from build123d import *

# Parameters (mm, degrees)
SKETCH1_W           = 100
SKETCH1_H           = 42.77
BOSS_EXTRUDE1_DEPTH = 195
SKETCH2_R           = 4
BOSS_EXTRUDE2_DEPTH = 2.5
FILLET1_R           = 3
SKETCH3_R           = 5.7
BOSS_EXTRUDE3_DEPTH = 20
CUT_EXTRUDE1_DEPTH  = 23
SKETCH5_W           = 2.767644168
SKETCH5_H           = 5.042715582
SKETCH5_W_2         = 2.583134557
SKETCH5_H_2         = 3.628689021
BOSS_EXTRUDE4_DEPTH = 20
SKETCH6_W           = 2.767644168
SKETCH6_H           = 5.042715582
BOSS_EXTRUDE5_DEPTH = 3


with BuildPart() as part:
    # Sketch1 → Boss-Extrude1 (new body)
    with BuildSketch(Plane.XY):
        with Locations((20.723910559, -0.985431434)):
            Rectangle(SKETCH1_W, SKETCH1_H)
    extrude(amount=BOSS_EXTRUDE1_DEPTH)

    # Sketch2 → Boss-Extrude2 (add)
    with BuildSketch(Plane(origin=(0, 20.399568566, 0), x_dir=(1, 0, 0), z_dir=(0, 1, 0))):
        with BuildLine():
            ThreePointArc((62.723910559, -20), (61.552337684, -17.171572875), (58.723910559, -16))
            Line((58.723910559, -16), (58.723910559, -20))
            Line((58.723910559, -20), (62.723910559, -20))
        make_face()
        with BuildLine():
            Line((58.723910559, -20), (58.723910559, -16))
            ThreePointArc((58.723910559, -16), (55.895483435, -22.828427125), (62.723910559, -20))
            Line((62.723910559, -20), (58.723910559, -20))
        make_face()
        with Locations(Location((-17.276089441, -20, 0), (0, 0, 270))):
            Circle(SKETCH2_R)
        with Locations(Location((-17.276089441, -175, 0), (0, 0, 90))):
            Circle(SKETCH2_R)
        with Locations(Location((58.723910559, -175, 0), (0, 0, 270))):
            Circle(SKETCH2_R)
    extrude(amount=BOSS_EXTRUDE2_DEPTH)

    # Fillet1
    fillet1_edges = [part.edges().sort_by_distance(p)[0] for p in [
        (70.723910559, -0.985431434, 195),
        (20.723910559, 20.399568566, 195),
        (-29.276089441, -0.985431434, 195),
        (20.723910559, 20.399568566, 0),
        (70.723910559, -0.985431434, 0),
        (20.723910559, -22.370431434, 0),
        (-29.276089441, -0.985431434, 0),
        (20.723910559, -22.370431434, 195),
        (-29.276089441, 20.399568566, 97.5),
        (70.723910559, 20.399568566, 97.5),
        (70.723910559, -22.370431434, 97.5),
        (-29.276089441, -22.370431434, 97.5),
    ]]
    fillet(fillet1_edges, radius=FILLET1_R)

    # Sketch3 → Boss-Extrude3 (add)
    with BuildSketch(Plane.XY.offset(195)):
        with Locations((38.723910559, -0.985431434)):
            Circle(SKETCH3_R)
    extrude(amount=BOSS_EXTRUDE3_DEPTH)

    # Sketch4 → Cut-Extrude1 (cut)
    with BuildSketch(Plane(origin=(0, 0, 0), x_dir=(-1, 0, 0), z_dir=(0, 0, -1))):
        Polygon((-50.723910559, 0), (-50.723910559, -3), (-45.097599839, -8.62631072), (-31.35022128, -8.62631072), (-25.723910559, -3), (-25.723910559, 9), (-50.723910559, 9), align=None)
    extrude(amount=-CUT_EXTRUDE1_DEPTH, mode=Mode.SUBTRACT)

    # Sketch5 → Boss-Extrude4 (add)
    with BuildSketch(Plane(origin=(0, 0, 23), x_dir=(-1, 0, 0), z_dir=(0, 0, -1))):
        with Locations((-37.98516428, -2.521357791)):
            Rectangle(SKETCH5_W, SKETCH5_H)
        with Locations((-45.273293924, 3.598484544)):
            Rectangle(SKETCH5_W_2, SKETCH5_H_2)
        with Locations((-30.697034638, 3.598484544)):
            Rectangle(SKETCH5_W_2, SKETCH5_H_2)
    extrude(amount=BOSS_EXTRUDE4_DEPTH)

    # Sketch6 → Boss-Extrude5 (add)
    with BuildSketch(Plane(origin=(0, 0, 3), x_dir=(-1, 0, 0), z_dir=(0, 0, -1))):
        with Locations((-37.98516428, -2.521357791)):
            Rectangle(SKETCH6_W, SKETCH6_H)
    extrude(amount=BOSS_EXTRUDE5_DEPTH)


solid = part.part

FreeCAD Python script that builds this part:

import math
import FreeCAD as App
import Part
import Sketcher

V = App.Vector


def edges_at(feature, points):
    """Names of the edges that pass closest to the given points."""
    edges = feature.Shape.Edges
    near = lambda p: min(range(len(edges)), key=lambda i: edges[i].distToShape(Part.Vertex(*p))[0])
    return sorted({f"Edge{near(p) + 1}" for p in points})

doc = App.newDocument("Part")
body = doc.addObject("PartDesign::Body", "Body")

# Sketch on XY plane
sketch1 = doc.addObject("Sketcher::SketchObject", "Sketch")
body.addObject(sketch1)
sketch1.AttachmentSupport = (doc.XY_Plane, [""])
sketch1.MapMode = "FlatFace"
sketch1.addGeometry(Part.LineSegment(V(-29.276089, 20.399569, 0), V(-29.276089, -22.370431, 0)), False)
sketch1.addGeometry(Part.LineSegment(V(-29.276089, -22.370431, 0), V(70.723911, -22.370431, 0)), False)
sketch1.addGeometry(Part.LineSegment(V(70.723911, -22.370431, 0), V(70.723911, 20.399569, 0)), False)
sketch1.addGeometry(Part.LineSegment(V(70.723911, 20.399569, 0), V(-29.276089, 20.399569, 0)), False)
sketch1.addConstraint(Sketcher.Constraint("Coincident", 0, 2, 1, 1))
sketch1.addConstraint(Sketcher.Constraint("Coincident", 1, 2, 2, 1))
sketch1.addConstraint(Sketcher.Constraint("Coincident", 2, 2, 3, 1))
sketch1.addConstraint(Sketcher.Constraint("Coincident", 3, 2, 0, 1))
sketch1.addConstraint(Sketcher.Constraint("Vertical", 0))
sketch1.addConstraint(Sketcher.Constraint("Horizontal", 1))
sketch1.addConstraint(Sketcher.Constraint("Vertical", 2))
sketch1.addConstraint(Sketcher.Constraint("Horizontal", 3))
sketch1.addConstraint(Sketcher.Constraint("DistanceX", 1, 1, 1, 2, 100.0))
sketch1.addConstraint(Sketcher.Constraint("DistanceY", 0, 2, 0, 1, 42.77))
sketch1.addConstraint(Sketcher.Constraint("DistanceX", 0, 2, -1, 1, 29.276089))
sketch1.addConstraint(Sketcher.Constraint("DistanceY", 0, 2, -1, 1, 22.370431))
pad1 = doc.addObject("PartDesign::Pad", "Pad")
body.addObject(pad1)
pad1.Profile = sketch1
pad1.Length = 195

# Sketch on XZ plane
sketch2 = doc.addObject("Sketcher::SketchObject", "Sketch001")
body.addObject(sketch2)
sketch2.AttachmentSupport = (doc.XZ_Plane, [""])
sketch2.MapMode = "FlatFace"
sketch2.AttachmentOffset = App.Placement(V(0, 0, -20.399569), App.Rotation())
sketch2.addGeometry(Part.ArcOfCircle(Part.Circle(V(58.723911, 20, 0), V(0, 0, 1), 4), math.radians(-90), math.radians(0)), False)
sketch2.addGeometry(Part.ArcOfCircle(Part.Circle(V(58.723911, 20, 0), V(0, 0, 1), 4), math.radians(0), math.radians(270)), False)
sketch2.addGeometry(Part.Circle(V(-17.276089, 20, 0), V(0, 0, 1), 4), False)
sketch2.addGeometry(Part.Circle(V(-17.276089, 175, 0), V(0, 0, 1), 4), False)
sketch2.addGeometry(Part.Circle(V(58.723911, 175, 0), V(0, 0, 1), 4), False)
sketch2.addConstraint(Sketcher.Constraint("Tangent", 0, 1, 1, 2))
sketch2.addConstraint(Sketcher.Constraint("Coincident", 1, 1, 0, 2))
sketch2.addConstraint(Sketcher.Constraint("Equal", 1, 2))
sketch2.addConstraint(Sketcher.Constraint("Equal", 2, 3))
sketch2.addConstraint(Sketcher.Constraint("Equal", 3, 4))
sketch2.addConstraint(Sketcher.Constraint("Horizontal", 1, 3, 2, 3))
sketch2.addConstraint(Sketcher.Constraint("Horizontal", 3, 3, 4, 3))
sketch2.addConstraint(Sketcher.Constraint("Horizontal", 2, 3, 1, 1))
sketch2.addConstraint(Sketcher.Constraint("Vertical", 2, 3, 3, 3))
sketch2.addConstraint(Sketcher.Constraint("Vertical", 1, 3, 4, 3))
sketch2.addConstraint(Sketcher.Constraint("Vertical", 4, 3, 0, 1))
sketch2.addConstraint(Sketcher.Constraint("Diameter", 2, 8.0))
sketch2.addConstraint(Sketcher.Constraint("DistanceY", -1, 1, 0, 3, 20.0))
sketch2.addConstraint(Sketcher.Constraint("DistanceY", -1, 1, 3, 3, 175.0))
sketch2.addConstraint(Sketcher.Constraint("DistanceX", 2, 3, 1, 3, 76.0))
sketch2.addConstraint(Sketcher.Constraint("DistanceX", -1, 1, 0, 3, 58.723911))
pad2 = doc.addObject("PartDesign::Pad", "Pad001")
body.addObject(pad2)
pad2.Profile = sketch2
pad2.Length = 2.5
pad2.Reversed = True
doc.recompute()

fillet = doc.addObject("PartDesign::Fillet", "Fillet")
body.addObject(fillet)
fillet.Base = (pad2, edges_at(pad2, [
    (70.724, -0.985, 195),
    (20.724, 20.4, 195),
    (-29.276, -0.985, 195),
    (20.724, 20.4, 0),
    (70.724, -0.985, 0),
    (20.724, -22.37, 0),
    (-29.276, -0.985, 0),
    (20.724, -22.37, 195),
    (-29.276, 20.4, 97.5),
    (70.724, 20.4, 97.5),
    (70.724, -22.37, 97.5),
    (-29.276, -22.37, 97.5),
]))
fillet.Radius = 3

# Sketch on XY plane
sketch3 = doc.addObject("Sketcher::SketchObject", "Sketch002")
body.addObject(sketch3)
sketch3.AttachmentSupport = (doc.XY_Plane, [""])
sketch3.MapMode = "FlatFace"
sketch3.AttachmentOffset = App.Placement(V(0, 0, 195), App.Rotation())
sketch3.addGeometry(Part.Circle(V(38.723911, -0.985431, 0), V(0, 0, 1), 5.7), False)
sketch3.addConstraint(Sketcher.Constraint("Diameter", 0, 11.4))
sketch3.addConstraint(Sketcher.Constraint("DistanceX", -1, 1, 0, 3, 38.723911))
sketch3.addConstraint(Sketcher.Constraint("DistanceY", 0, 3, -1, 1, 0.985431))
pad3 = doc.addObject("PartDesign::Pad", "Pad002")
body.addObject(pad3)
pad3.Profile = sketch3
pad3.Length = 20

# Sketch on XY plane
sketch4 = doc.addObject("Sketcher::SketchObject", "Sketch003")
body.addObject(sketch4)
sketch4.AttachmentSupport = (doc.XY_Plane, [""])
sketch4.MapMode = "FlatFace"
sketch4.addGeometry(Part.LineSegment(V(50.723911, -3, 0), V(45.0976, -8.626311, 0)), False)
sketch4.addGeometry(Part.LineSegment(V(45.0976, -8.626311, 0), V(31.350221, -8.626311, 0)), False)
sketch4.addGeometry(Part.LineSegment(V(31.350221, -8.626311, 0), V(25.723911, -3, 0)), False)
sketch4.addGeometry(Part.LineSegment(V(25.723911, -3, 0), V(25.723911, 9, 0)), False)
sketch4.addGeometry(Part.LineSegment(V(25.723911, 9, 0), V(50.723911, 9, 0)), False)
sketch4.addGeometry(Part.LineSegment(V(50.723911, 9, 0), V(50.723911, -3, 0)), False)
sketch4.addConstraint(Sketcher.Constraint("Coincident", 0, 2, 1, 1))
sketch4.addConstraint(Sketcher.Constraint("Coincident", 1, 2, 2, 1))
sketch4.addConstraint(Sketcher.Constraint("Coincident", 2, 2, 3, 1))
sketch4.addConstraint(Sketcher.Constraint("Coincident", 3, 2, 4, 1))
sketch4.addConstraint(Sketcher.Constraint("Coincident", 4, 2, 5, 1))
sketch4.addConstraint(Sketcher.Constraint("Coincident", 5, 2, 0, 1))
sketch4.addConstraint(Sketcher.Constraint("Horizontal", 1))
sketch4.addConstraint(Sketcher.Constraint("Vertical", 3))
sketch4.addConstraint(Sketcher.Constraint("Horizontal", 4))
sketch4.addConstraint(Sketcher.Constraint("Vertical", 5))
sketch4.addConstraint(Sketcher.Constraint("Perpendicular", 0, 2))
sketch4.addConstraint(Sketcher.Constraint("Horizontal", 2, 2, 5, 2))
sketch4.addConstraint(Sketcher.Constraint("Equal", 0, 2))
sketch4.addConstraint(Sketcher.Constraint("DistanceX", 4, 1, 4, 2, 25.0))
sketch4.addConstraint(Sketcher.Constraint("DistanceY", 3, 1, 3, 2, 12.0))
sketch4.addConstraint(Sketcher.Constraint("DistanceY", 2, 2, -1, 1, 3.0))
sketch4.addConstraint(Sketcher.Constraint("DistanceX", 1, 2, 1, 1, 13.747379))
sketch4.addConstraint(Sketcher.Constraint("DistanceX", -1, 1, 0, 2, 45.0976))
pocket1 = doc.addObject("PartDesign::Pocket", "Pocket")
body.addObject(pocket1)
pocket1.Profile = sketch4
pocket1.Length = 23
pocket1.Reversed = True

# Sketch on XY plane
sketch5 = doc.addObject("Sketcher::SketchObject", "Sketch004")
body.addObject(sketch5)
sketch5.AttachmentSupport = (doc.XY_Plane, [""])
sketch5.MapMode = "FlatFace"
sketch5.AttachmentOffset = App.Placement(V(0, 0, 23), App.Rotation())
sketch5.addGeometry(Part.LineSegment(V(39.368986, 0, 0), V(39.368986, -5.042716, 0)), False)
sketch5.addGeometry(Part.LineSegment(V(39.368986, -5.042716, 0), V(36.601342, -5.042716, 0)), False)
sketch5.addGeometry(Part.LineSegment(V(36.601342, -5.042716, 0), V(36.601342, 0, 0)), False)
sketch5.addGeometry(Part.LineSegment(V(36.601342, 0, 0), V(39.368986, 0, 0)), False)
sketch5.addGeometry(Part.LineSegment(V(46.564861, 5.412829, 0), V(46.564861, 1.78414, 0)), False)
sketch5.addGeometry(Part.LineSegment(V(46.564861, 1.78414, 0), V(43.981727, 1.78414, 0)), False)
sketch5.addGeometry(Part.LineSegment(V(43.981727, 1.78414, 0), V(43.981727, 5.412829, 0)), False)
sketch5.addGeometry(Part.LineSegment(V(43.981727, 5.412829, 0), V(46.564861, 5.412829, 0)), False)
sketch5.addGeometry(Part.LineSegment(V(31.988602, 5.412829, 0), V(31.988602, 1.78414, 0)), False)
sketch5.addGeometry(Part.LineSegment(V(31.988602, 1.78414, 0), V(29.405467, 1.78414, 0)), False)
sketch5.addGeometry(Part.LineSegment(V(29.405467, 1.78414, 0), V(29.405467, 5.412829, 0)), False)
sketch5.addGeometry(Part.LineSegment(V(29.405467, 5.412829, 0), V(31.988602, 5.412829, 0)), False)
sketch5.addConstraint(Sketcher.Constraint("Coincident", 0, 2, 1, 1))
sketch5.addConstraint(Sketcher.Constraint("Coincident", 1, 2, 2, 1))
sketch5.addConstraint(Sketcher.Constraint("Coincident", 2, 2, 3, 1))
sketch5.addConstraint(Sketcher.Constraint("Coincident", 3, 2, 0, 1))
sketch5.addConstraint(Sketcher.Constraint("Coincident", 4, 2, 5, 1))
sketch5.addConstraint(Sketcher.Constraint("Coincident", 5, 2, 6, 1))
sketch5.addConstraint(Sketcher.Constraint("Coincident", 6, 2, 7, 1))
sketch5.addConstraint(Sketcher.Constraint("Coincident", 7, 2, 4, 1))
sketch5.addConstraint(Sketcher.Constraint("Coincident", 8, 2, 9, 1))
sketch5.addConstraint(Sketcher.Constraint("Coincident", 9, 2, 10, 1))
sketch5.addConstraint(Sketcher.Constraint("Coincident", 10, 2, 11, 1))
sketch5.addConstraint(Sketcher.Constraint("Coincident", 11, 2, 8, 1))
sketch5.addConstraint(Sketcher.Constraint("Vertical", 0))
sketch5.addConstraint(Sketcher.Constraint("Horizontal", 1))
sketch5.addConstraint(Sketcher.Constraint("Vertical", 2))
sketch5.addConstraint(Sketcher.Constraint("Horizontal", 3))
sketch5.addConstraint(Sketcher.Constraint("Vertical", 4))
sketch5.addConstraint(Sketcher.Constraint("Horizontal", 5))
sketch5.addConstraint(Sketcher.Constraint("Vertical", 6))
sketch5.addConstraint(Sketcher.Constraint("Horizontal", 7))
sketch5.addConstraint(Sketcher.Constraint("Vertical", 8))
sketch5.addConstraint(Sketcher.Constraint("Horizontal", 9))
sketch5.addConstraint(Sketcher.Constraint("Vertical", 10))
sketch5.addConstraint(Sketcher.Constraint("Horizontal", 11))
sketch5.addConstraint(Sketcher.Constraint("PointOnObject", 2, 2, -1))
sketch5.addConstraint(Sketcher.Constraint("Horizontal", 5, 2, 8, 2))
sketch5.addConstraint(Sketcher.Constraint("Horizontal", 7, 2, 10, 2))
sketch5.addConstraint(Sketcher.Constraint("Equal", 7, 9))
sketch5.addConstraint(Sketcher.Constraint("DistanceY", 4, 2, 4, 1, 3.628689))
sketch5.addConstraint(Sketcher.Constraint("DistanceX", -1, 1, 8, 2, 31.988602))
sketch5.addConstraint(Sketcher.Constraint("DistanceX", 1, 2, 1, 1, 2.767644))
sketch5.addConstraint(Sketcher.Constraint("DistanceX", 5, 2, 5, 1, 2.583135))
sketch5.addConstraint(Sketcher.Constraint("DistanceY", 0, 2, 0, 1, 5.042716))
sketch5.addConstraint(Sketcher.Constraint("DistanceX", -1, 1, 4, 2, 46.564861))
sketch5.addConstraint(Sketcher.Constraint("DistanceY", -1, 1, 4, 2, 1.78414))
sketch5.addConstraint(Sketcher.Constraint("DistanceX", 2, 2, 4, 2, 9.963519))
pad4 = doc.addObject("PartDesign::Pad", "Pad003")
body.addObject(pad4)
pad4.Profile = sketch5
pad4.Length = 20
pad4.Reversed = True

# Sketch on XY plane
sketch6 = doc.addObject("Sketcher::SketchObject", "Sketch005")
body.addObject(sketch6)
sketch6.AttachmentSupport = (doc.XY_Plane, [""])
sketch6.MapMode = "FlatFace"
sketch6.AttachmentOffset = App.Placement(V(0, 0, 3), App.Rotation())
sketch6.addGeometry(Part.LineSegment(V(39.368986, 0, 0), V(39.368986, -5.042716, 0)), False)
sketch6.addGeometry(Part.LineSegment(V(39.368986, -5.042716, 0), V(36.601342, -5.042716, 0)), False)
sketch6.addGeometry(Part.LineSegment(V(36.601342, -5.042716, 0), V(36.601342, 0, 0)), False)
sketch6.addGeometry(Part.LineSegment(V(36.601342, 0, 0), V(39.368986, 0, 0)), False)
sketch6.addConstraint(Sketcher.Constraint("Coincident", 0, 2, 1, 1))
sketch6.addConstraint(Sketcher.Constraint("Coincident", 1, 2, 2, 1))
sketch6.addConstraint(Sketcher.Constraint("Coincident", 2, 2, 3, 1))
sketch6.addConstraint(Sketcher.Constraint("Coincident", 3, 2, 0, 1))
sketch6.addConstraint(Sketcher.Constraint("Vertical", 0))
sketch6.addConstraint(Sketcher.Constraint("Horizontal", 1))
sketch6.addConstraint(Sketcher.Constraint("Vertical", 2))
sketch6.addConstraint(Sketcher.Constraint("Horizontal", 3))
sketch6.addConstraint(Sketcher.Constraint("PointOnObject", 2, 2, -1))
sketch6.addConstraint(Sketcher.Constraint("DistanceX", 1, 2, 1, 1, 2.767644))
sketch6.addConstraint(Sketcher.Constraint("DistanceY", 0, 2, 0, 1, 5.042716))
sketch6.addConstraint(Sketcher.Constraint("DistanceX", -1, 1, 0, 2, 39.368986))
pad5 = doc.addObject("PartDesign::Pad", "Pad004")
body.addObject(pad5)
pad5.Profile = sketch6
pad5.Length = 3
pad5.Reversed = True

doc.recompute()
